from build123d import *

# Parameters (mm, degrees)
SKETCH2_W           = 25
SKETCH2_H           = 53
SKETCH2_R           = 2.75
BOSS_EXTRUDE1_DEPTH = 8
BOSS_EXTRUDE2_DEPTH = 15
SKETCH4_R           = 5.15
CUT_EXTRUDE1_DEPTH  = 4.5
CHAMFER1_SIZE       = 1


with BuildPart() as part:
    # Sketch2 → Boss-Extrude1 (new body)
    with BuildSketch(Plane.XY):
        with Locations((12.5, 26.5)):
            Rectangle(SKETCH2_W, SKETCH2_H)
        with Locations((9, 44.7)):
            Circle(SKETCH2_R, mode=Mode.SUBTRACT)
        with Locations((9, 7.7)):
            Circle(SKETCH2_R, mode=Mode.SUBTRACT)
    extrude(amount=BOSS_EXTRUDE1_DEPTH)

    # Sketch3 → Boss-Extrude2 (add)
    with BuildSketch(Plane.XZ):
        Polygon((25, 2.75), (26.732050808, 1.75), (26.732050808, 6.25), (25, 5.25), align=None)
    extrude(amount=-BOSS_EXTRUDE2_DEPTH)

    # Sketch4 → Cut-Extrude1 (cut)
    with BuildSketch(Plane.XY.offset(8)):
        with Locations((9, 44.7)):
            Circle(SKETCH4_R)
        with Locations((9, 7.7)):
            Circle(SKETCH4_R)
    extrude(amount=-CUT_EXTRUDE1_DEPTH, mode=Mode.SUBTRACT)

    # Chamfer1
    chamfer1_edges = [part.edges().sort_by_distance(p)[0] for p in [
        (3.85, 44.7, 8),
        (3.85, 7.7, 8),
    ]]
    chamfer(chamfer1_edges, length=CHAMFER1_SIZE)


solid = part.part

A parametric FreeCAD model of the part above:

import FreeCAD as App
import Part
import Sketcher

V = App.Vector
Q = App.Units.Quantity


def edges_at(feature, points):
    """Names of the edges that pass closest to the given points."""
    edges = feature.Shape.Edges
    near = lambda p: min(range(len(edges)), key=lambda i: edges[i].distToShape(Part.Vertex(*p))[0])
    return sorted({f"Edge{near(p) + 1}" for p in points})

doc = App.newDocument("Part")
body = doc.addObject("PartDesign::Body", "Body")

# Sketch on XY plane
sketch1 = body.newObject("Sketcher::SketchObject", "Sketch")
sketch1.AttachmentSupport = (doc.getObject("XY_Plane"), [""])
sketch1.MapMode = "FlatFace"
sketch1.addGeometry(Part.LineSegment(V(0, 53, 0), V(0, 0, 0)), False)
sketch1.addGeometry(Part.LineSegment(V(0, 0, 0), V(25, 0, 0)), False)
sketch1.addGeometry(Part.LineSegment(V(25, 0, 0), V(25, 53, 0)), False)
sketch1.addGeometry(Part.LineSegment(V(25, 53, 0), V(0, 53, 0)), False)
sketch1.addGeometry(Part.Circle(V(9, 7.7, 0), V(0, 0, 1), 2.75), False)
sketch1.addGeometry(Part.Circle(V(9, 44.7, 0), V(0, 0, 1), 2.75), False)
sketch1.addConstraint(Sketcher.Constraint("Coincident", 0, 2, 1, 1))
sketch1.addConstraint(Sketcher.Constraint("Coincident", 1, 2, 2, 1))
sketch1.addConstraint(Sketcher.Constraint("Coincident", 2, 2, 3, 1))
sketch1.addConstraint(Sketcher.Constraint("Coincident", 3, 2, 0, 1))
sketch1.addConstraint(Sketcher.Constraint("Vertical", 0))
sketch1.addConstraint(Sketcher.Constraint("Horizontal", 1))
sketch1.addConstraint(Sketcher.Constraint("Vertical", 2))
sketch1.addConstraint(Sketcher.Constraint("Horizontal", 3))
sketch1.addConstraint(Sketcher.Constraint("Coincident", 0, 2, -1, 1))
sketch1.addConstraint(Sketcher.Constraint("Equal", 4, 5))
sketch1.addConstraint(Sketcher.Constraint("Vertical", 4, 3, 5, 3))
sketch1.addConstraint(Sketcher.Constraint("Diameter", 4, 5.5))
sketch1.addConstraint(Sketcher.Constraint("DistanceX", 1, 1, 1, 2, 25.0))
sketch1.addConstraint(Sketcher.Constraint("DistanceY", 0, 2, 0, 1, 53.0))
sketch1.addConstraint(Sketcher.Constraint("DistanceX", -1, 1, 4, 3, 9.0))
sketch1.addConstraint(Sketcher.Constraint("DistanceY", 4, 3, 5, 3, 37.0))
sketch1.addConstraint(Sketcher.Constraint("DistanceY", -1, 1, 4, 3, 7.7))
pad1 = body.newObject("PartDesign::Pad", "Pad")
pad1.Profile = sketch1
pad1.Length = 8

# Sketch on XZ plane
sketch2 = body.newObject("Sketcher::SketchObject", "Sketch001")
sketch2.AttachmentSupport = (doc.getObject("XZ_Plane"), [""])
sketch2.MapMode = "FlatFace"
sketch2.addGeometry(Part.LineSegment(V(25, 2.75, 0), V(26.732051, 1.75, 0)), False)
sketch2.addGeometry(Part.LineSegment(V(26.732051, 1.75, 0), V(26.732051, 6.25, 0)), False)
sketch2.addGeometry(Part.LineSegment(V(26.732051, 6.25, 0), V(25, 5.25, 0)), False)
sketch2.addGeometry(Part.LineSegment(V(25, 5.25, 0), V(25, 2.75, 0)), False)
sketch2.addConstraint(Sketcher.Constraint("Coincident", 0, 2, 1, 1))
sketch2.addConstraint(Sketcher.Constraint("Coincident", 1, 2, 2, 1))
sketch2.addConstraint(Sketcher.Constraint("Coincident", 2, 2, 3, 1))
sketch2.addConstraint(Sketcher.Constraint("Coincident", 3, 2, 0, 1))
sketch2.addConstraint(Sketcher.Constraint("Vertical", 1))
sketch2.addConstraint(Sketcher.Constraint("Vertical", 3))
sketch2.addConstraint(Sketcher.Constraint("Equal", 0, 2))
sketch2.addConstraint(Sketcher.Constraint("Angle", 0, Q("-30 deg")))
sketch2.addConstraint(Sketcher.Constraint("Distance", 0, 2.0))
sketch2.addConstraint(Sketcher.Constraint("DistanceY", 1, 1, 1, 2, 4.5))
sketch2.addConstraint(Sketcher.Constraint("DistanceX", -1, 1, 2, 2, 25.0))
sketch2.addConstraint(Sketcher.Constraint("DistanceY", -1, 1, 0, 2, 1.75))
pad2 = body.newObject("PartDesign::Pad", "Pad001")
pad2.Profile = sketch2
pad2.Length = 15
pad2.Reversed = True

# Sketch on XY plane
sketch3 = body.newObject("Sketcher::SketchObject", "Sketch002")
sketch3.AttachmentSupport = (doc.getObject("XY_Plane"), [""])
sketch3.MapMode = "FlatFace"
sketch3.AttachmentOffset = App.Placement(V(0, 0, 8), App.Rotation())
sketch3.addGeometry(Part.Circle(V(9, 44.7, 0), V(0, 0, 1), 5.15), False)
sketch3.addGeometry(Part.Circle(V(9, 7.7, 0), V(0, 0, 1), 5.15), False)
sketch3.addConstraint(Sketcher.Constraint("Equal", 0, 1))
sketch3.addConstraint(Sketcher.Constraint("Vertical", 0, 3, 1, 3))
sketch3.addConstraint(Sketcher.Constraint("Diameter", 0, 10.3))
sketch3.addConstraint(Sketcher.Constraint("DistanceX", -1, 1, 0, 3, 9.0))
sketch3.addConstraint(Sketcher.Constraint("DistanceY", 1, 3, 0, 3, 37.0))
sketch3.addConstraint(Sketcher.Constraint("DistanceY", -1, 1, 0, 3, 44.7))
pocket1 = body.newObject("PartDesign::Pocket", "Pocket")
pocket1.Profile = sketch3
pocket1.Length = 4.5
doc.recompute()

chamfer = body.newObject("PartDesign::Chamfer", "Chamfer")
chamfer.Base = (pocket1, edges_at(pocket1, [(3.85, 44.7, 8), (3.85, 7.7, 8)]))
chamfer.Size = 1

doc.recompute()
